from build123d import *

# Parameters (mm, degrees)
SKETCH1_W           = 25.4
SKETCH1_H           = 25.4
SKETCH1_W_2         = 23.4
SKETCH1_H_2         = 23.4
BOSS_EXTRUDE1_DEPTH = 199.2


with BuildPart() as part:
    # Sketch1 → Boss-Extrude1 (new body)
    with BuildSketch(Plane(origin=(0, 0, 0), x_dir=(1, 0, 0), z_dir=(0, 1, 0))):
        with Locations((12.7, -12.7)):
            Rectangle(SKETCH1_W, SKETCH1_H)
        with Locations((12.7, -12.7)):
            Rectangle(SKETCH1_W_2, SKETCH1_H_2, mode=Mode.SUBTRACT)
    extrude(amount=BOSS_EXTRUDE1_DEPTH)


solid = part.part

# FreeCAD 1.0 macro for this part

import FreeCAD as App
import Part
import Sketcher
Q = App.Units.Quantity


def add_polygon(sketch, points):
    """Adds a closed chain of lines whose ends are joined by coincident constraints."""
    first, n = sketch.GeometryCount, len(points)
    for a, b in zip(points, points[1:] + points[:1]):
        sketch.addGeometry(Part.LineSegment(App.Vector(*a, 0), App.Vector(*b, 0)), False)
    for i in range(n):
        sketch.addConstraint(Sketcher.Constraint("Coincident", first + i, 2, first + (i + 1) % n, 1))

doc = App.newDocument("Part")
params = doc.addObject("Spreadsheet::Sheet", "Params")
for row, (alias, value) in enumerate([
    ("sketch1_width", "25.4 mm"),
    ("sketch1_width2", "23.4 mm"),
    ("pad1_length", "199.2 mm"),
], start=1):
    params.set(f"A{row}", alias)
    params.set(f"B{row}", "=" + value)
    params.setAlias(f"B{row}", alias)

body = doc.addObject("PartDesign::Body", "Body")

# Sketch on XZ plane
sketch1 = body.newObject("Sketcher::SketchObject", "Sketch")
sketch1.AttachmentSupport = (doc.getObject("XZ_Plane"), [""])
sketch1.MapMode = "FlatFace"
add_polygon(sketch1, [(0, 0), (0, 25.4), (25.4, 25.4), (25.4, 0)])  # lines 0-3
add_polygon(sketch1, [(24.4, 24.4), (1, 24.4), (1, 1), (24.4, 1)])  # lines 4-7
sketch1.addConstraint([
    Sketcher.Constraint("Vertical", 0),
    Sketcher.Constraint("Horizontal", 1),
    Sketcher.Constraint("Vertical", 2),
    Sketcher.Constraint("Horizontal", 3),
    Sketcher.Constraint("Horizontal", 4),
    Sketcher.Constraint("Vertical", 5),
    Sketcher.Constraint("Horizontal", 6),
    Sketcher.Constraint("Vertical", 7),
    Sketcher.Constraint("Coincident", 3, 2, -1, 1),
    Sketcher.Constraint("Equal", 3, 0),
    Sketcher.Constraint("Equal", 6, 5),
    Sketcher.Constraint("DistanceX", 1, 1, 1, 2, Q("25.4 mm")),
    Sketcher.Constraint("DistanceX", 4, 2, 4, 1, Q("23.4 mm")),
    Sketcher.Constraint("DistanceX", -1, 1, 4, 2, Q("1 mm")),
    Sketcher.Constraint("DistanceY", -1, 1, 5, 2, Q("1 mm")),
])
sketch1.setExpression("Constraints[19]", "Params.sketch1_width")
sketch1.setExpression("Constraints[20]", "Params.sketch1_width2")
pad1 = body.newObject("PartDesign::Pad", "Pad")
pad1.Profile = sketch1
pad1.setExpression("Length", "Params.pad1_length")
pad1.Reversed = True

doc.recompute()
